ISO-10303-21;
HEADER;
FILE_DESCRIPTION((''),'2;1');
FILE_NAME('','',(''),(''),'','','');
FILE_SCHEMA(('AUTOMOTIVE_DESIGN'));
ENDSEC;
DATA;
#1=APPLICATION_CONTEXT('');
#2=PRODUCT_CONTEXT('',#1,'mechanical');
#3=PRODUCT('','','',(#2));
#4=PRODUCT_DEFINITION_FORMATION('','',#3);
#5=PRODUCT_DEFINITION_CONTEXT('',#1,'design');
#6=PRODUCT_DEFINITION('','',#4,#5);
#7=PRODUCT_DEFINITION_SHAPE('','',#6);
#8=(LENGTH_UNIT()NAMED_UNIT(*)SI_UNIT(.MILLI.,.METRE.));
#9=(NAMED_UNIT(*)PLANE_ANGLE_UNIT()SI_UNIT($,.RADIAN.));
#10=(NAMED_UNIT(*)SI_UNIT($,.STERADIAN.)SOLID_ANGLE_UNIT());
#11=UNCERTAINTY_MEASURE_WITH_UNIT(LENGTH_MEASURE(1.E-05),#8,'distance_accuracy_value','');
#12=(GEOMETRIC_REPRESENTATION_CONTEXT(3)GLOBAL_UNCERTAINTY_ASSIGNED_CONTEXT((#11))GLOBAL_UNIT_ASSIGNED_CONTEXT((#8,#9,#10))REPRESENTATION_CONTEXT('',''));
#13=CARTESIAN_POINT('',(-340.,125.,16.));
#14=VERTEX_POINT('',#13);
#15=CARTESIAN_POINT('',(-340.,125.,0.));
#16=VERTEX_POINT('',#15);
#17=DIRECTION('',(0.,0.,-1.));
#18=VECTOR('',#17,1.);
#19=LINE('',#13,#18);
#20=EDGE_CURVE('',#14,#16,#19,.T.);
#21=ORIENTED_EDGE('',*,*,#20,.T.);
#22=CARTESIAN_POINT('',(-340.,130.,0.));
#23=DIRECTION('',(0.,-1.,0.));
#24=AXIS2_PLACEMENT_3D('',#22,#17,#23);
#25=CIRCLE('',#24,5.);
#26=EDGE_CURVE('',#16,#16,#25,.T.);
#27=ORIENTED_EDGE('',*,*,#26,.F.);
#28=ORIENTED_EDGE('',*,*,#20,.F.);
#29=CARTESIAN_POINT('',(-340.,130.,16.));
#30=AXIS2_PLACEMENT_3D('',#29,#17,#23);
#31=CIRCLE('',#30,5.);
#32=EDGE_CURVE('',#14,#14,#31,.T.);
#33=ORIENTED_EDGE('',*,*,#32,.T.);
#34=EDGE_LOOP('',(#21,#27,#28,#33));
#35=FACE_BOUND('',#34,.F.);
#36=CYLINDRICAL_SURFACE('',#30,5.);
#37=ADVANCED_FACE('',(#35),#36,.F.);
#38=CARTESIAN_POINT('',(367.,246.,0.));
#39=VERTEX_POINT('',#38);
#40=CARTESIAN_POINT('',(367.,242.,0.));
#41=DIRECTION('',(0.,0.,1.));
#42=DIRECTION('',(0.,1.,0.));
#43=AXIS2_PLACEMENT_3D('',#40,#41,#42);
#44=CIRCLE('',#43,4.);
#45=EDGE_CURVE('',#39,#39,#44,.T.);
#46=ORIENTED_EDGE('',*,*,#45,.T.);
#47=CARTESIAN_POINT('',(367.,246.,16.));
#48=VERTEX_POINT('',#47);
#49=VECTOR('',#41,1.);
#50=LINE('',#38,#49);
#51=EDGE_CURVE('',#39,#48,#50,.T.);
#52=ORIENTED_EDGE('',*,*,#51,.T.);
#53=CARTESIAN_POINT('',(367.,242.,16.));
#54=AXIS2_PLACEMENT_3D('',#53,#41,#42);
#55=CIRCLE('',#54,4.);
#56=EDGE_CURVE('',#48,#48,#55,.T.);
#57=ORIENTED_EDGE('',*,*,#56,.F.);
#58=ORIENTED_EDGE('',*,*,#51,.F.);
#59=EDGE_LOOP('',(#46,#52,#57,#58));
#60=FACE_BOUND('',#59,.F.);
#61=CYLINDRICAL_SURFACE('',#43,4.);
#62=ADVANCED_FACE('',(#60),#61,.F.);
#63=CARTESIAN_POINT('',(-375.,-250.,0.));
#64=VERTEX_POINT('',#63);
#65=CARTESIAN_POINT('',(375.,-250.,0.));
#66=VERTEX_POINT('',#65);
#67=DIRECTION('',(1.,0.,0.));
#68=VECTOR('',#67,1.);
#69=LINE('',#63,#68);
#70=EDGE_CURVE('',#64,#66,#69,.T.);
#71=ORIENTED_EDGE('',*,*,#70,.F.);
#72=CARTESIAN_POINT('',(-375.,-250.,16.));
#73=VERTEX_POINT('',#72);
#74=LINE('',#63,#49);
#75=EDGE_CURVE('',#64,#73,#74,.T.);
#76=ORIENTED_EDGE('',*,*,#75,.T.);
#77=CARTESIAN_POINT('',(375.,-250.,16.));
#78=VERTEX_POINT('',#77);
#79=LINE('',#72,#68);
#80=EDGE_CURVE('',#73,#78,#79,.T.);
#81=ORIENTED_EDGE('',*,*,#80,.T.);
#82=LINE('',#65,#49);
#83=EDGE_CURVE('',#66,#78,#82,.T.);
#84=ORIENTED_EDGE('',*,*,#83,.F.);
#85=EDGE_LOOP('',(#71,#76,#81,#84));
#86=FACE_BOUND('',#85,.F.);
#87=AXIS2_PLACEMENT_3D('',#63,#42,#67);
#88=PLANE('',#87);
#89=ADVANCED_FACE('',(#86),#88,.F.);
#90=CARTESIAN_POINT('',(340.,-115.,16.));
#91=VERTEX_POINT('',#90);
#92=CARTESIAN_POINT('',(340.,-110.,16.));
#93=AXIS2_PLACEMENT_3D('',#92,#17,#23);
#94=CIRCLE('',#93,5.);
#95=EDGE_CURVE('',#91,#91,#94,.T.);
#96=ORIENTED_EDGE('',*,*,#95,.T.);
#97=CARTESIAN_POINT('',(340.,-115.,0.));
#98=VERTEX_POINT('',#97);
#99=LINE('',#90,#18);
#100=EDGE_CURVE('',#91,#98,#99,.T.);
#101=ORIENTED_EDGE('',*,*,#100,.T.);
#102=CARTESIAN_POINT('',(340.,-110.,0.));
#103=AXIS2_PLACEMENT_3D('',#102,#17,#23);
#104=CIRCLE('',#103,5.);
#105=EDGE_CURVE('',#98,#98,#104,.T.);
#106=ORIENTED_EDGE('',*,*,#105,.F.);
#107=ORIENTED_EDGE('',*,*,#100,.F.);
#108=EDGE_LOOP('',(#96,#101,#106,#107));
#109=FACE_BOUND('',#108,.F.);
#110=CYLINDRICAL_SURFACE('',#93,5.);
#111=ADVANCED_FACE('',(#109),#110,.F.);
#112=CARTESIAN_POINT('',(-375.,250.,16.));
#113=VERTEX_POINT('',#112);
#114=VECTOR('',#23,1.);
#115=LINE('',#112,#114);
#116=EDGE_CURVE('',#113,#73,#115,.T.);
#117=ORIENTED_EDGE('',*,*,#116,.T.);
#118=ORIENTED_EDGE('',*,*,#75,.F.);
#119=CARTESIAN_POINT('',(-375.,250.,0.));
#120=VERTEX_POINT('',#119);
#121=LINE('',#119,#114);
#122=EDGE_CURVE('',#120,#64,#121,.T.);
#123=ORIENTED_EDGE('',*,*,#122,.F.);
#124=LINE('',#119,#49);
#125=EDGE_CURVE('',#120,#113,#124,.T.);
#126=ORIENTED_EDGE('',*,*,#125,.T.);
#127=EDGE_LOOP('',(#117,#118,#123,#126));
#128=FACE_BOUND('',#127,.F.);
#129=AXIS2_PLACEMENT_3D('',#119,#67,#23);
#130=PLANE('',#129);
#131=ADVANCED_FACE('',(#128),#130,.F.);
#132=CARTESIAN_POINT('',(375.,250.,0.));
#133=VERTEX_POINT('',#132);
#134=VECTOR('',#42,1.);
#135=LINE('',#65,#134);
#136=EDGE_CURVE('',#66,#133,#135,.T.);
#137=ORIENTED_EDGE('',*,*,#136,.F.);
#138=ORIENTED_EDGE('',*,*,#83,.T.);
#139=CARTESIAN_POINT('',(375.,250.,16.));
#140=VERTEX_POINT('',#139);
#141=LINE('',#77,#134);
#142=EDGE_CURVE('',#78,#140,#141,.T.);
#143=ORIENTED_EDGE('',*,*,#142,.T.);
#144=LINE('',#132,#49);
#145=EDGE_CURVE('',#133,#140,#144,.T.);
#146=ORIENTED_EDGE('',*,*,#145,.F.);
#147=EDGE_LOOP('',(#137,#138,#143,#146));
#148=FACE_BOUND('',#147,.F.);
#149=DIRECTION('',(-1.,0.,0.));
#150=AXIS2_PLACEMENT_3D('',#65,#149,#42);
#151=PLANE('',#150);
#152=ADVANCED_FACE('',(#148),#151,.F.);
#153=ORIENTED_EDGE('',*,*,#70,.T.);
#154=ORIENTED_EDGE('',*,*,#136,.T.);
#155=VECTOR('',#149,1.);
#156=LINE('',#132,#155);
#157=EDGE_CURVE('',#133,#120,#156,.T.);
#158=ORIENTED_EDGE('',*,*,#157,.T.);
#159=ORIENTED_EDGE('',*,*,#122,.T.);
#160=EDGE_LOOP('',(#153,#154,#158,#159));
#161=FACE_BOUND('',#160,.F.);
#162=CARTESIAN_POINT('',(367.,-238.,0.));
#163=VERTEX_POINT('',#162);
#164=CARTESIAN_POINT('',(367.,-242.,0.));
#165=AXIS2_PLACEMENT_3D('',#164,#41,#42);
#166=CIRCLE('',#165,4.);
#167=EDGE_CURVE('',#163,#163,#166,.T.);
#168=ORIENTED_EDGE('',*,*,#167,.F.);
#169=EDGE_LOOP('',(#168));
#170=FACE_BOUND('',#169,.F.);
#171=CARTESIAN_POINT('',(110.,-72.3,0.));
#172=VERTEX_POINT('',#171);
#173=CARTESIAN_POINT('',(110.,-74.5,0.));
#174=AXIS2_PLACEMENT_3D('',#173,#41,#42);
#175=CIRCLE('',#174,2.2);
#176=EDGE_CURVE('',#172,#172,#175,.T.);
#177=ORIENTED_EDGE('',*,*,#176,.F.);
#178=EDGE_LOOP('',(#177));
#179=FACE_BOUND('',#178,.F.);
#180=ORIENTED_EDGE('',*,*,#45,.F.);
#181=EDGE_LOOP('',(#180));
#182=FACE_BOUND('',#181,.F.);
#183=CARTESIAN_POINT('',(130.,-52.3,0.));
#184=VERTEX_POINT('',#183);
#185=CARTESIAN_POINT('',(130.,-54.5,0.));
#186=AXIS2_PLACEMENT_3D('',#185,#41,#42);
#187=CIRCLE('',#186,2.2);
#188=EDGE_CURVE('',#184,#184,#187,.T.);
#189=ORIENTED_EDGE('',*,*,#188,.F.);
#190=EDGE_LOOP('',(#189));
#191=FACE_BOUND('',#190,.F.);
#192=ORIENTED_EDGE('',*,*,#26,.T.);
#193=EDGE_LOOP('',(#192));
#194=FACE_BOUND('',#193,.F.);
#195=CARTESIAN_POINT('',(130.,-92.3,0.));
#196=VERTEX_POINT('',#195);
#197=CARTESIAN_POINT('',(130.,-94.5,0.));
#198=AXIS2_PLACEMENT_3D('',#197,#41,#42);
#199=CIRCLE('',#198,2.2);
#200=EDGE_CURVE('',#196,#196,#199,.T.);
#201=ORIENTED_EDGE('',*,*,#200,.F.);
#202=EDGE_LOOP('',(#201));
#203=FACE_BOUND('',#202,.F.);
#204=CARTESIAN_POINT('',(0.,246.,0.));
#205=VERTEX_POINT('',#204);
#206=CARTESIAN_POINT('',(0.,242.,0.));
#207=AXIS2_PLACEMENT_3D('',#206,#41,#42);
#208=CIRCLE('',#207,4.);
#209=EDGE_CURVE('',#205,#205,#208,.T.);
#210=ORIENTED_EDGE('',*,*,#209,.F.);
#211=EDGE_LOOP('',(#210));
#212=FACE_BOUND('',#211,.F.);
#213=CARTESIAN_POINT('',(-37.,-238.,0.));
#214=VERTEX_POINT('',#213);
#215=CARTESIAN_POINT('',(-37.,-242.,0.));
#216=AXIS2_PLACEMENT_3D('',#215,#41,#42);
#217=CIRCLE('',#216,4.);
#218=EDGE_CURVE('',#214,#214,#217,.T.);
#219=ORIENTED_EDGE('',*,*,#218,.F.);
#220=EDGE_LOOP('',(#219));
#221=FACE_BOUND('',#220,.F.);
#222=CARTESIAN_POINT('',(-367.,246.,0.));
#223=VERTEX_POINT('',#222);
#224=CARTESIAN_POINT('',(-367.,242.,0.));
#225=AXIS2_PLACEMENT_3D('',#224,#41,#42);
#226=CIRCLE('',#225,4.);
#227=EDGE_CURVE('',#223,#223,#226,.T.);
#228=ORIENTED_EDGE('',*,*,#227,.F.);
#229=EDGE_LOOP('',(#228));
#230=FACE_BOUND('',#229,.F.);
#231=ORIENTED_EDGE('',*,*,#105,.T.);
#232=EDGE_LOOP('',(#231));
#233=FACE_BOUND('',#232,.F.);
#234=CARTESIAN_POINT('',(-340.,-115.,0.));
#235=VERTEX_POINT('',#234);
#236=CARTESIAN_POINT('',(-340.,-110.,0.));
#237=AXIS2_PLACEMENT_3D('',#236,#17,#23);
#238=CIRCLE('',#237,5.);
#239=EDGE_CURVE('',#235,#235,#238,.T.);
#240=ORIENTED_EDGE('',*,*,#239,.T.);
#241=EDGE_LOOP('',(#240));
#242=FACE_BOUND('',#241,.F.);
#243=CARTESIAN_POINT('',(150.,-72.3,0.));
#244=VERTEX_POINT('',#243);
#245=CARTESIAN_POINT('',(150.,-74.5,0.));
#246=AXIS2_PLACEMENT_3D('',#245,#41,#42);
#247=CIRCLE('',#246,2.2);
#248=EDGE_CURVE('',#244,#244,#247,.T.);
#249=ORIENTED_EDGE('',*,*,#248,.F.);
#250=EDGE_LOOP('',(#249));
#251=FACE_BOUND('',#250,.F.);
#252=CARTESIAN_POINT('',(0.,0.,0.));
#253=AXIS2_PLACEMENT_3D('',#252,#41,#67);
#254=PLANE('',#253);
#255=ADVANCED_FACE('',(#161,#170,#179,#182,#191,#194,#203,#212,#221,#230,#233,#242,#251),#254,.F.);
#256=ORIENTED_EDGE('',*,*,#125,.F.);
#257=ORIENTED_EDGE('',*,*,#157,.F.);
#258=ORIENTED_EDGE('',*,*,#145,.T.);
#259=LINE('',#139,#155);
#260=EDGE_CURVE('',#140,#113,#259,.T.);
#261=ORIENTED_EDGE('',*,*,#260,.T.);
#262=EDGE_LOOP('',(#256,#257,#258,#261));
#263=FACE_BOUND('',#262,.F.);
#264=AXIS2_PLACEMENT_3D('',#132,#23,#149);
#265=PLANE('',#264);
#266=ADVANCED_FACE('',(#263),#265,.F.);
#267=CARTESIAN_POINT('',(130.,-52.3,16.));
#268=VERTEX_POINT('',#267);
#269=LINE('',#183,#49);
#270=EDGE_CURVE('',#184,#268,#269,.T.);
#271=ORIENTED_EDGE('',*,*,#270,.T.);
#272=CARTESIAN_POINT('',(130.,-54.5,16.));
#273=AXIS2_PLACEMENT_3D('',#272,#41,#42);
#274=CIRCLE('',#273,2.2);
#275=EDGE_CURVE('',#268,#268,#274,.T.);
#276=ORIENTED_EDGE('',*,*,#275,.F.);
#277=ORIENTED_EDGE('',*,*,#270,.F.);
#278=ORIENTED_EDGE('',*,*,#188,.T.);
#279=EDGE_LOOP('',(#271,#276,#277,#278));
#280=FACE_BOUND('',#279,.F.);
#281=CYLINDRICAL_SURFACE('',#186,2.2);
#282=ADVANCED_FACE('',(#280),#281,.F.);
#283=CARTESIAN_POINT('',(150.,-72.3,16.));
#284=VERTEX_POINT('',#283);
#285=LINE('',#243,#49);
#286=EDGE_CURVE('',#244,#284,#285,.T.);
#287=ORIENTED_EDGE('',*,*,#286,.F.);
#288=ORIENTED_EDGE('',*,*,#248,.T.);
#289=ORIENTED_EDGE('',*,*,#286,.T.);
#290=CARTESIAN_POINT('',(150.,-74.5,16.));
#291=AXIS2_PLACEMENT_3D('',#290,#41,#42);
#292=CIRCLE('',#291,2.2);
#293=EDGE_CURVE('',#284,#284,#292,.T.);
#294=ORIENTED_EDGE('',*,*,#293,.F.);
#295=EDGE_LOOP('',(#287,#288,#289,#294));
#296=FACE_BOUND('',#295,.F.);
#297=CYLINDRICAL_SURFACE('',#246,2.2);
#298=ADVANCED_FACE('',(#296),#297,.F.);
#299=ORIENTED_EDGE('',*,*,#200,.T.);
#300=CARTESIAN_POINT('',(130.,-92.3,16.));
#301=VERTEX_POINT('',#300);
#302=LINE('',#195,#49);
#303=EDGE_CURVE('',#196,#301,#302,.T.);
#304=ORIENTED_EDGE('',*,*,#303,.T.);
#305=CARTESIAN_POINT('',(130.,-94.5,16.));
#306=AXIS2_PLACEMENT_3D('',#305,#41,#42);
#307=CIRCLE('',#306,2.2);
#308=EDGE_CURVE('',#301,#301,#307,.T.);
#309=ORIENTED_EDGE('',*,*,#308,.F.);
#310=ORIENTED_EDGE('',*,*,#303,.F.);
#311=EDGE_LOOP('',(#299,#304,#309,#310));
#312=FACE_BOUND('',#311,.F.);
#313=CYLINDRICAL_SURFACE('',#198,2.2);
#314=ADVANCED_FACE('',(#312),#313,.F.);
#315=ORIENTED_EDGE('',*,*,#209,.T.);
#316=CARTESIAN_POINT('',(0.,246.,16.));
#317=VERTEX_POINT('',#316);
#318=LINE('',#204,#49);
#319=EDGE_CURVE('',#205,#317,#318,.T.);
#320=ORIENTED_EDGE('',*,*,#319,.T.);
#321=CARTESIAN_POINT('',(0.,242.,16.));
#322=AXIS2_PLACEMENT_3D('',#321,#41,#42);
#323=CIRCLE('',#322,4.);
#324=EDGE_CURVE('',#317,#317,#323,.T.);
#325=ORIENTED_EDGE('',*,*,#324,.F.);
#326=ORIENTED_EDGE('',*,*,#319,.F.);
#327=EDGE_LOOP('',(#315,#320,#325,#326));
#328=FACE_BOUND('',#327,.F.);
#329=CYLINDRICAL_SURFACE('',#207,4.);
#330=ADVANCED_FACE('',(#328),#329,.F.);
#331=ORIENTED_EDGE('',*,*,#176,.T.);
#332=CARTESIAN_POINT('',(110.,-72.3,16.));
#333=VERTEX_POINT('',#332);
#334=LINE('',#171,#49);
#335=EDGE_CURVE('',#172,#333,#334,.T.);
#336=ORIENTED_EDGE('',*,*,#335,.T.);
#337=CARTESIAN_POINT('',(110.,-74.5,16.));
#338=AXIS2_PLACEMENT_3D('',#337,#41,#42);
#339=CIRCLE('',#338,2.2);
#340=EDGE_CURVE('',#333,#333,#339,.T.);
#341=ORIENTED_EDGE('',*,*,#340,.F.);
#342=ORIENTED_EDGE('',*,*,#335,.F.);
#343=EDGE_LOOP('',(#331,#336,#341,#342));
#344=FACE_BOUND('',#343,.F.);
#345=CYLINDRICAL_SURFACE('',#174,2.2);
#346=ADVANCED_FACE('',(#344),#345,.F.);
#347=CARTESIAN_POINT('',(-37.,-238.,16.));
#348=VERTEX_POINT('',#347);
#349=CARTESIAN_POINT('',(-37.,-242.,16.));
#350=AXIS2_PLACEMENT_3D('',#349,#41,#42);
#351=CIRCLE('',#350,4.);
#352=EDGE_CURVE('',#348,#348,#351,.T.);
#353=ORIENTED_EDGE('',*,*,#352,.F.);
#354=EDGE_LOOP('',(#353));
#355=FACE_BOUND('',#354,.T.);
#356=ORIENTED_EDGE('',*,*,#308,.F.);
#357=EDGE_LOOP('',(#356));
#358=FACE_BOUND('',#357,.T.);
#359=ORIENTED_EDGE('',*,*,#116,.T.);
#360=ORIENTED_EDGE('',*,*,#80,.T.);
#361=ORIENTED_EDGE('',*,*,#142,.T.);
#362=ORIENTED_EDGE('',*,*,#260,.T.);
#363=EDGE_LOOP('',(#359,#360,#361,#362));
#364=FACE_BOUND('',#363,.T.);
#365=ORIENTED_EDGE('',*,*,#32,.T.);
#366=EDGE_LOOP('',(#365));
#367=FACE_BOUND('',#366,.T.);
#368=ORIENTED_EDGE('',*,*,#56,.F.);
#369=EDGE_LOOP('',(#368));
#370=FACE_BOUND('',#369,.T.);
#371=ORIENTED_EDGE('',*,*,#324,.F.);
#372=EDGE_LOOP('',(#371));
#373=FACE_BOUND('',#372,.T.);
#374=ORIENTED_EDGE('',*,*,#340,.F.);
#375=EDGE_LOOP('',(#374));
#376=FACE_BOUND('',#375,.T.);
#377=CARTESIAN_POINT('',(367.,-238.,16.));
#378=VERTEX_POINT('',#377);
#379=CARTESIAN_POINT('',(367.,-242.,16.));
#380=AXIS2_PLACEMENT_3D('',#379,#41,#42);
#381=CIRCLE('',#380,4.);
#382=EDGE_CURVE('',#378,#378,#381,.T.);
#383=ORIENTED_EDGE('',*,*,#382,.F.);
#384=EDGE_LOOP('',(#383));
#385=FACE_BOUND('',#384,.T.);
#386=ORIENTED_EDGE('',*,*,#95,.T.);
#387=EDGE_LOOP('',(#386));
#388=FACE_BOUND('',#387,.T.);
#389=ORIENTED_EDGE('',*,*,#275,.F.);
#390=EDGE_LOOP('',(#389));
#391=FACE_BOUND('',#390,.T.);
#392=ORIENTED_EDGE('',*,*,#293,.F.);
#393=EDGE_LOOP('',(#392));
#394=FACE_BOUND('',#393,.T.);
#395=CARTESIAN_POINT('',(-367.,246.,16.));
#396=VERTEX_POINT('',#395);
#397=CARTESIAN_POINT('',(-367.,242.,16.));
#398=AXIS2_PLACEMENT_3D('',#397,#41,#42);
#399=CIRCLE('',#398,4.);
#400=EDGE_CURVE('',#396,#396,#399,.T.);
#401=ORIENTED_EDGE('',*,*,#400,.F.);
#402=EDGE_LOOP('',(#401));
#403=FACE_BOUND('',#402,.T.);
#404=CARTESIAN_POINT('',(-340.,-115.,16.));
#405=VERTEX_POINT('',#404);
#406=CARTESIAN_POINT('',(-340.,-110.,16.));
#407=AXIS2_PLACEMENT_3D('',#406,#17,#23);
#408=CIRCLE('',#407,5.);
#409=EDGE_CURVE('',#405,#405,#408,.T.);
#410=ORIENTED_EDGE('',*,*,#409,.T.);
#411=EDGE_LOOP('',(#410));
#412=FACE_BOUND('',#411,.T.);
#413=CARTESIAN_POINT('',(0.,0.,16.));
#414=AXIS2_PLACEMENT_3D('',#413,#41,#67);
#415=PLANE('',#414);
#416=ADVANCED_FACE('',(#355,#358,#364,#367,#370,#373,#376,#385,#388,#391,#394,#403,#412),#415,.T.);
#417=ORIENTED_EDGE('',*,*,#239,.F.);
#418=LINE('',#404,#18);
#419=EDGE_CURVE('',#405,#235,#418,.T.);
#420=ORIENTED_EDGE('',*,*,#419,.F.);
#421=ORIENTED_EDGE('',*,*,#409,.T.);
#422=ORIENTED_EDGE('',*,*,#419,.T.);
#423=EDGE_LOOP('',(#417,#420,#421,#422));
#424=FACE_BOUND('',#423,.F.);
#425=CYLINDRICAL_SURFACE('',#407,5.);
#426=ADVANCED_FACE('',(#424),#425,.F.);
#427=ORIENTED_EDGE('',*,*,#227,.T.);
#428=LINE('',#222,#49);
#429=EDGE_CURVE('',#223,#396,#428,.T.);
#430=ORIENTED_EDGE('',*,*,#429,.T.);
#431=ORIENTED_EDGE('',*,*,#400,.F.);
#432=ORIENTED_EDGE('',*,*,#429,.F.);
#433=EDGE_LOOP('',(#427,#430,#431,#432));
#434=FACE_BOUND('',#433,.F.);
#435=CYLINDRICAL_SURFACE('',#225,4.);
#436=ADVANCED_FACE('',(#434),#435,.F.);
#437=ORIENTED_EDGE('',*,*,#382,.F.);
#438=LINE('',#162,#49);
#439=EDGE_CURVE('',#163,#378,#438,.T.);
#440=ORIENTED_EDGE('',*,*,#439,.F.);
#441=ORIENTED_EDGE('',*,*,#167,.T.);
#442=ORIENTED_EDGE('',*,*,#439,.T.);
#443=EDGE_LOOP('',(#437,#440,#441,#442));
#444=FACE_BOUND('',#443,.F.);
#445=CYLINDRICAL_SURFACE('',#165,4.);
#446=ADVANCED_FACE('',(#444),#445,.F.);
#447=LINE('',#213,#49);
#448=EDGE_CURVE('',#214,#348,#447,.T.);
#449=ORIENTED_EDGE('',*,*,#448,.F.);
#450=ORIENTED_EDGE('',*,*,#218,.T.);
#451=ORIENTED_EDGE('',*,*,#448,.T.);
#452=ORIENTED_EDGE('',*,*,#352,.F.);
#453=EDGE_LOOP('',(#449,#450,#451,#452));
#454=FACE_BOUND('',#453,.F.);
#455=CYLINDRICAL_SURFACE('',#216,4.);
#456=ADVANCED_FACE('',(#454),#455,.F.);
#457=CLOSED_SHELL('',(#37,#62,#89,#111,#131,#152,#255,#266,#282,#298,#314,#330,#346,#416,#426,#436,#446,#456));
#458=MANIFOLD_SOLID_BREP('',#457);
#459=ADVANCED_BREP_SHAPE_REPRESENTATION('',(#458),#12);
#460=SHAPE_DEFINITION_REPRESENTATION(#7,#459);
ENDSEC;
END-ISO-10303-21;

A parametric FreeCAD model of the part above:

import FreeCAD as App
import Part
import Sketcher
from FreeCAD import Vector

doc = App.newDocument("Part")
body = doc.addObject("PartDesign::Body", "Body")

# Sketch on XY plane
sketch1 = body.newObject("Sketcher::SketchObject", "Sketch")
sketch1.AttachmentSupport = (doc.getObject("XY_Plane"), [""])
sketch1.MapMode = "FlatFace"
sketch1.addGeometry([
    Part.LineSegment(Vector(-375, 250, 0), Vector(-375, -250, 0)),
    Part.LineSegment(Vector(-375, -250, 0), Vector(375, -250, 0)),
    Part.LineSegment(Vector(375, -250, 0), Vector(375, 250, 0)),
    Part.LineSegment(Vector(375, 250, 0), Vector(-375, 250, 0)),
], False)
sketch1.addConstraint([
    Sketcher.Constraint("Coincident", 0, 2, 1, 1),
    Sketcher.Constraint("Coincident", 1, 2, 2, 1),
    Sketcher.Constraint("Coincident", 2, 2, 3, 1),
    Sketcher.Constraint("Coincident", 3, 2, 0, 1),
    Sketcher.Constraint("Vertical", 0),
    Sketcher.Constraint("Horizontal", 1),
    Sketcher.Constraint("Vertical", 2),
    Sketcher.Constraint("Horizontal", 3),
    Sketcher.Constraint("Symmetric", 0, 2, 2, 2, -1, 1),
    Sketcher.Constraint("DistanceX", 1, 1, 1, 2, 750.0),
    Sketcher.Constraint("DistanceY", 0, 2, 0, 1, 500.0),
])
pad1 = body.newObject("PartDesign::Pad", "Pad")
pad1.Profile = sketch1
pad1.Length = 16

# Sketch on XY plane
sketch2 = body.newObject("Sketcher::SketchObject", "Sketch001")
sketch2.AttachmentSupport = (doc.getObject("XY_Plane"), [""])
sketch2.MapMode = "FlatFace"
sketch2.AttachmentOffset = App.Placement(Vector(0, 0, 16), App.Rotation())
sketch2.addGeometry([
    Part.Circle(Vector(340, -110, 0), Vector(0, 0, 1), 5),
    Part.Circle(Vector(-340, -110, 0), Vector(0, 0, 1), 5),
    Part.Circle(Vector(-340, 130, 0), Vector(0, 0, 1), 5),
], False)
sketch2.addConstraint([
    Sketcher.Constraint("Equal", 0, 1),
    Sketcher.Constraint("Equal", 1, 2),
    Sketcher.Constraint("Symmetric", 0, 3, 1, 3, -2),
    Sketcher.Constraint("Vertical", 1, 3, 2, 3),
    Sketcher.Constraint("Diameter", 0, 10.0),
    Sketcher.Constraint("DistanceX", -1, 1, 0, 3, 340.0),
    Sketcher.Constraint("DistanceY", 0, 3, -1, 1, 110.0),
    Sketcher.Constraint("DistanceY", -1, 1, 2, 3, 130.0),
])
doc.recompute()
hole = body.newObject("PartDesign::Hole", "Hole")
hole.Profile = sketch2
hole.ThreadType = "None"
hole.Diameter = 10
hole.DepthType = "ThroughAll"

# Sketch on XY plane
sketch3 = body.newObject("Sketcher::SketchObject", "Sketch002")
sketch3.AttachmentSupport = (doc.getObject("XY_Plane"), [""])
sketch3.MapMode = "FlatFace"
sketch3.addGeometry([
    Part.Circle(Vector(150, -74.5, 0), Vector(0, 0, 1), 2.2),
    Part.Circle(Vector(130, -54.5, 0), Vector(0, 0, 1), 2.2),
    Part.Circle(Vector(130, -94.5, 0), Vector(0, 0, 1), 2.2),
    Part.Circle(Vector(110, -74.5, 0), Vector(0, 0, 1), 2.2),
], False)
sketch3.addConstraint([
    Sketcher.Constraint("Equal", 0, 1),
    Sketcher.Constraint("Equal", 1, 2),
    Sketcher.Constraint("Equal", 2, 3),
    Sketcher.Constraint("Horizontal", 0, 3, 3, 3),
    Sketcher.Constraint("Vertical", 1, 3, 2, 3),
    Sketcher.Constraint("Diameter", 0, 4.4),
    Sketcher.Constraint("DistanceX", -1, 1, 0, 3, 150.0),
    Sketcher.Constraint("DistanceX", -1, 1, 1, 3, 130.0),
    Sketcher.Constraint("DistanceX", -1, 1, 3, 3, 110.0),
    Sketcher.Constraint("DistanceY", 0, 3, 1, 3, 20.0),
    Sketcher.Constraint("DistanceY", 2, 3, 0, 3, 20.0),
    Sketcher.Constraint("DistanceY", 0, 3, -1, 1, 74.5),
])
doc.recompute()
hole2 = body.newObject("PartDesign::Hole", "Hole001")
hole2.Profile = sketch3
hole2.ThreadType = "None"
hole2.Diameter = 4.4
hole2.DepthType = "ThroughAll"
hole2.Reversed = True

# Sketch on XY plane
sketch4 = body.newObject("Sketcher::SketchObject", "Sketch003")
sketch4.AttachmentSupport = (doc.getObject("XY_Plane"), [""])
sketch4.MapMode = "FlatFace"
sketch4.addGeometry([
    Part.Circle(Vector(367, 242, 0), Vector(0, 0, 1), 4),  # 0
    Part.Circle(Vector(0, 242, 0), Vector(0, 0, 1), 4),  # 1
    Part.Circle(Vector(-367, 242, 0), Vector(0, 0, 1), 4),  # 2
    Part.Circle(Vector(367, -242, 0), Vector(0, 0, 1), 4),  # 3
    Part.Circle(Vector(-37, -242, 0), Vector(0, 0, 1), 4),  # 4
], False)
sketch4.addConstraint([
    Sketcher.Constraint("Equal", 0, 1),
    Sketcher.Constraint("Equal", 1, 2),
    Sketcher.Constraint("Equal", 2, 3),
    Sketcher.Constraint("Equal", 3, 4),
    Sketcher.Constraint("Symmetric", 2, 3, 3, 3, -1, 1),
    Sketcher.Constraint("Symmetric", 0, 3, 2, 3, -2),
    Sketcher.Constraint("PointOnObject", 1, 3, -2),
    Sketcher.Constraint("Horizontal", 0, 3, 1, 3),
    Sketcher.Constraint("Horizontal", 3, 3, 4, 3),
    Sketcher.Constraint("Diameter", 0, 8.0),
    Sketcher.Constraint("DistanceX", -1, 1, 0, 3, 367.0),
    Sketcher.Constraint("DistanceY", -1, 1, 0, 3, 242.0),
    Sketcher.Constraint("DistanceX", 4, 3, -1, 1, 37.0),
])
doc.recompute()
hole3 = body.newObject("PartDesign::Hole", "Hole002")
hole3.Profile = sketch4
hole3.ThreadType = "None"
hole3.Diameter = 8
hole3.DepthType = "Dimension"
hole3.Depth = 20
hole3.DrillPoint = "Angled"
hole3.DrillPointAngle = 118
hole3.Reversed = True

doc.recompute()
